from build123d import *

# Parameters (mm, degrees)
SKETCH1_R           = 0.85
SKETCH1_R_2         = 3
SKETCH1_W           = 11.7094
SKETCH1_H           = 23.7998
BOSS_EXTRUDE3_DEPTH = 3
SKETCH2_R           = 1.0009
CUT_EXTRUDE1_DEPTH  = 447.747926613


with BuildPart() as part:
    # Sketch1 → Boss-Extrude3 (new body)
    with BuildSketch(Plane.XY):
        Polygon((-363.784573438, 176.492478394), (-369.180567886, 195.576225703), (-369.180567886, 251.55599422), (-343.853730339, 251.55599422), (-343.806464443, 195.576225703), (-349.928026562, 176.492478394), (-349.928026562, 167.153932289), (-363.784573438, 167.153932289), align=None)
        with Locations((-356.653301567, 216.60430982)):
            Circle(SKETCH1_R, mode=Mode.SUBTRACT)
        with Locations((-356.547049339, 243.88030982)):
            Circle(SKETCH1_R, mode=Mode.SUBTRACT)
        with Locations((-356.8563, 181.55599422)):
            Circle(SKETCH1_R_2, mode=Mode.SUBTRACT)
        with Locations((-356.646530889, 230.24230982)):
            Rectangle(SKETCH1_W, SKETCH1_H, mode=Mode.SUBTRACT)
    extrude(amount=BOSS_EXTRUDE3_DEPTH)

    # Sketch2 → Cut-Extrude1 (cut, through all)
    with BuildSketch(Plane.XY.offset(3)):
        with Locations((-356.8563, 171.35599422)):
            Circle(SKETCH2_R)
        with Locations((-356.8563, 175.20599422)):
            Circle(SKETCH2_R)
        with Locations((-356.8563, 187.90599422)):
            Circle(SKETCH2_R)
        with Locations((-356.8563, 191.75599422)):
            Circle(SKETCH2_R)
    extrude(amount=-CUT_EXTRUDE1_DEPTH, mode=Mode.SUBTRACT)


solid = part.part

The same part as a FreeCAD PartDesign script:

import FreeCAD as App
import Part
import Sketcher
from FreeCAD import Vector
Q = App.Units.Quantity

doc = App.newDocument("Part")
body = doc.addObject("PartDesign::Body", "Body")

sketch1 = body.newObject("Sketcher::SketchObject", "Sketch")
sketch1.AttachmentSupport = (doc.getObject("XY_Plane"), [""])
sketch1.MapMode = "FlatFace"
sketch1.addGeometry([
    Part.LineSegment(Vector(-369.180568, 195.576226, 0), Vector(-363.784573, 176.492478, 0)),
    Part.LineSegment(Vector(-363.784573, 176.492478, 0), Vector(-363.784573, 167.153932, 0)),
    Part.LineSegment(Vector(-363.784573, 167.153932, 0), Vector(-349.928027, 167.153932, 0)),
    Part.LineSegment(Vector(-349.928027, 167.153932, 0), Vector(-349.928027, 176.492478, 0)),
    Part.LineSegment(Vector(-349.928027, 176.492478, 0), Vector(-343.806464, 195.576226, 0)),
    Part.LineSegment(Vector(-343.806464, 195.576226, 0), Vector(-343.85373, 251.555994, 0)),
    Part.LineSegment(Vector(-343.85373, 251.555994, 0), Vector(-369.180568, 251.555994, 0)),
    Part.LineSegment(Vector(-369.180568, 251.555994, 0), Vector(-369.180568, 195.576226, 0)),
    Part.Circle(Vector(-356.8563, 181.555994, 0), Vector(0, 0, 1), 3),
    Part.Circle(Vector(-356.547049, 243.88031, 0), Vector(0, 0, 1), 0.85),
    Part.Circle(Vector(-356.653302, 216.60431, 0), Vector(0, 0, 1), 0.85),
    Part.LineSegment(Vector(-362.501231, 218.34241, 0), Vector(-362.501231, 242.14221, 0)),
    Part.LineSegment(Vector(-362.501231, 242.14221, 0), Vector(-350.791831, 242.14221, 0)),
    Part.LineSegment(Vector(-350.791831, 242.14221, 0), Vector(-350.791831, 218.34241, 0)),
    Part.LineSegment(Vector(-350.791831, 218.34241, 0), Vector(-362.501231, 218.34241, 0)),
], False)
sketch1.addConstraint([
    Sketcher.Constraint("Coincident", 0, 2, 1, 1),
    Sketcher.Constraint("Coincident", 1, 2, 2, 1),
    Sketcher.Constraint("Coincident", 2, 2, 3, 1),
    Sketcher.Constraint("Coincident", 3, 2, 4, 1),
    Sketcher.Constraint("Coincident", 4, 2, 5, 1),
    Sketcher.Constraint("Coincident", 5, 2, 6, 1),
    Sketcher.Constraint("Coincident", 6, 2, 7, 1),
    Sketcher.Constraint("Coincident", 7, 2, 0, 1),
    Sketcher.Constraint("Coincident", 11, 2, 12, 1),
    Sketcher.Constraint("Coincident", 12, 2, 13, 1),
    Sketcher.Constraint("Coincident", 13, 2, 14, 1),
    Sketcher.Constraint("Coincident", 14, 2, 11, 1),
    Sketcher.Constraint("Vertical", 1),
    Sketcher.Constraint("Horizontal", 2),
    Sketcher.Constraint("Vertical", 3),
    Sketcher.Constraint("Horizontal", 6),
    Sketcher.Constraint("Vertical", 7),
    Sketcher.Constraint("Vertical", 11),
    Sketcher.Constraint("Horizontal", 12),
    Sketcher.Constraint("Vertical", 13),
    Sketcher.Constraint("Horizontal", 14),
    Sketcher.Constraint("Equal", 9, 10),
    Sketcher.Constraint("Horizontal", 0, 2, 3, 2),
    Sketcher.Constraint("Horizontal", 4, 2, 7, 2),
    Sketcher.Constraint("Diameter", 8, Q("6 mm")),
    Sketcher.Constraint("Diameter", 9, Q("1.7 mm")),
    Sketcher.Constraint("DistanceY", 8, 3, 5, 2, Q("70 mm")),
    Sketcher.Constraint("DistanceX", 12, 1, 12, 2, Q("11.7094 mm")),
    Sketcher.Constraint("DistanceY", 11, 1, 11, 2, Q("23.7998 mm")),
    Sketcher.Constraint("DistanceY", 10, 3, 9, 3, Q("27.276 mm")),
    Sketcher.Constraint("DistanceX", 8, 3, 10, 3, Q("0.202998 mm")),
    Sketcher.Constraint("DistanceY", 7, 2, 7, 1, Q("55.979769 mm")),
    Sketcher.Constraint("DistanceX", 8, 3, -1, 1, Q("356.8563 mm")),
    Sketcher.Constraint("DistanceY", 11, 2, 9, 3, Q("1.7381 mm")),
    Sketcher.Constraint("DistanceX", 11, 2, 5, 2, Q("18.647501 mm")),
    Sketcher.Constraint("Distance", 0, Q("19.831948 mm")),
    Sketcher.Constraint("Distance", 4, Q("20.04153 mm")),
    Sketcher.Constraint("DistanceX", 2, 1, 2, 2, Q("13.856547 mm")),
    Sketcher.Constraint("DistanceX", 6, 2, 6, 1, Q("25.326838 mm")),
    Sketcher.Constraint("DistanceY", 1, 2, 1, 1, Q("9.338546 mm")),
    Sketcher.Constraint("DistanceX", 9, 3, -1, 1, Q("356.547049 mm")),
    Sketcher.Constraint("DistanceY", -1, 1, 9, 3, Q("243.88031 mm")),
    Sketcher.Constraint("DistanceY", -1, 1, 0, 2, Q("176.492478 mm")),
    Sketcher.Constraint("DistanceX", 5, 2, -1, 1, Q("343.85373 mm")),
    Sketcher.Constraint("DistanceX", 0, 2, 10, 3, Q("7.131272 mm")),
])
pad1 = body.newObject("PartDesign::Pad", "Pad")
pad1.Profile = sketch1
pad1.Length = 3

sketch2 = body.newObject("Sketcher::SketchObject", "Sketch001")
sketch2.AttachmentSupport = (doc.getObject("XY_Plane"), [""])
sketch2.MapMode = "FlatFace"
sketch2.AttachmentOffset = App.Placement(Vector(0, 0, 3), App.Rotation())
sketch2.addGeometry([
    Part.Circle(Vector(-356.8563, 171.355994, 0), Vector(0, 0, 1), 1.0009),
    Part.Circle(Vector(-356.8563, 175.205994, 0), Vector(0, 0, 1), 1.0009),
    Part.Circle(Vector(-356.8563, 187.905994, 0), Vector(0, 0, 1), 1.0009),
    Part.Circle(Vector(-356.8563, 191.755994, 0), Vector(0, 0, 1), 1.0009),
], False)
sketch2.addConstraint([
    Sketcher.Constraint("Equal", 0, 1),
    Sketcher.Constraint("Equal", 1, 2),
    Sketcher.Constraint("Equal", 2, 3),
    Sketcher.Constraint("Vertical", 0, 3, 1, 3),
    Sketcher.Constraint("Vertical", 1, 3, 2, 3),
    Sketcher.Constraint("Vertical", 2, 3, 3, 3),
    Sketcher.Constraint("Diameter", 0, Q("2.0018 mm")),
    Sketcher.Constraint("DistanceY", 1, 3, 2, 3, Q("12.7 mm")),
    Sketcher.Constraint("DistanceY", 0, 3, 3, 3, Q("20.4 mm")),
    Sketcher.Constraint("DistanceY", 0, 3, 1, 3, Q("3.85 mm")),
    Sketcher.Constraint("DistanceX", 0, 3, -1, 1, Q("356.8563 mm")),
    Sketcher.Constraint("DistanceY", -1, 1, 0, 3, Q("171.355994 mm")),
])
pocket1 = body.newObject("PartDesign::Pocket", "Pocket")
pocket1.Profile = sketch2
pocket1.Type = "ThroughAll"

doc.recompute()
